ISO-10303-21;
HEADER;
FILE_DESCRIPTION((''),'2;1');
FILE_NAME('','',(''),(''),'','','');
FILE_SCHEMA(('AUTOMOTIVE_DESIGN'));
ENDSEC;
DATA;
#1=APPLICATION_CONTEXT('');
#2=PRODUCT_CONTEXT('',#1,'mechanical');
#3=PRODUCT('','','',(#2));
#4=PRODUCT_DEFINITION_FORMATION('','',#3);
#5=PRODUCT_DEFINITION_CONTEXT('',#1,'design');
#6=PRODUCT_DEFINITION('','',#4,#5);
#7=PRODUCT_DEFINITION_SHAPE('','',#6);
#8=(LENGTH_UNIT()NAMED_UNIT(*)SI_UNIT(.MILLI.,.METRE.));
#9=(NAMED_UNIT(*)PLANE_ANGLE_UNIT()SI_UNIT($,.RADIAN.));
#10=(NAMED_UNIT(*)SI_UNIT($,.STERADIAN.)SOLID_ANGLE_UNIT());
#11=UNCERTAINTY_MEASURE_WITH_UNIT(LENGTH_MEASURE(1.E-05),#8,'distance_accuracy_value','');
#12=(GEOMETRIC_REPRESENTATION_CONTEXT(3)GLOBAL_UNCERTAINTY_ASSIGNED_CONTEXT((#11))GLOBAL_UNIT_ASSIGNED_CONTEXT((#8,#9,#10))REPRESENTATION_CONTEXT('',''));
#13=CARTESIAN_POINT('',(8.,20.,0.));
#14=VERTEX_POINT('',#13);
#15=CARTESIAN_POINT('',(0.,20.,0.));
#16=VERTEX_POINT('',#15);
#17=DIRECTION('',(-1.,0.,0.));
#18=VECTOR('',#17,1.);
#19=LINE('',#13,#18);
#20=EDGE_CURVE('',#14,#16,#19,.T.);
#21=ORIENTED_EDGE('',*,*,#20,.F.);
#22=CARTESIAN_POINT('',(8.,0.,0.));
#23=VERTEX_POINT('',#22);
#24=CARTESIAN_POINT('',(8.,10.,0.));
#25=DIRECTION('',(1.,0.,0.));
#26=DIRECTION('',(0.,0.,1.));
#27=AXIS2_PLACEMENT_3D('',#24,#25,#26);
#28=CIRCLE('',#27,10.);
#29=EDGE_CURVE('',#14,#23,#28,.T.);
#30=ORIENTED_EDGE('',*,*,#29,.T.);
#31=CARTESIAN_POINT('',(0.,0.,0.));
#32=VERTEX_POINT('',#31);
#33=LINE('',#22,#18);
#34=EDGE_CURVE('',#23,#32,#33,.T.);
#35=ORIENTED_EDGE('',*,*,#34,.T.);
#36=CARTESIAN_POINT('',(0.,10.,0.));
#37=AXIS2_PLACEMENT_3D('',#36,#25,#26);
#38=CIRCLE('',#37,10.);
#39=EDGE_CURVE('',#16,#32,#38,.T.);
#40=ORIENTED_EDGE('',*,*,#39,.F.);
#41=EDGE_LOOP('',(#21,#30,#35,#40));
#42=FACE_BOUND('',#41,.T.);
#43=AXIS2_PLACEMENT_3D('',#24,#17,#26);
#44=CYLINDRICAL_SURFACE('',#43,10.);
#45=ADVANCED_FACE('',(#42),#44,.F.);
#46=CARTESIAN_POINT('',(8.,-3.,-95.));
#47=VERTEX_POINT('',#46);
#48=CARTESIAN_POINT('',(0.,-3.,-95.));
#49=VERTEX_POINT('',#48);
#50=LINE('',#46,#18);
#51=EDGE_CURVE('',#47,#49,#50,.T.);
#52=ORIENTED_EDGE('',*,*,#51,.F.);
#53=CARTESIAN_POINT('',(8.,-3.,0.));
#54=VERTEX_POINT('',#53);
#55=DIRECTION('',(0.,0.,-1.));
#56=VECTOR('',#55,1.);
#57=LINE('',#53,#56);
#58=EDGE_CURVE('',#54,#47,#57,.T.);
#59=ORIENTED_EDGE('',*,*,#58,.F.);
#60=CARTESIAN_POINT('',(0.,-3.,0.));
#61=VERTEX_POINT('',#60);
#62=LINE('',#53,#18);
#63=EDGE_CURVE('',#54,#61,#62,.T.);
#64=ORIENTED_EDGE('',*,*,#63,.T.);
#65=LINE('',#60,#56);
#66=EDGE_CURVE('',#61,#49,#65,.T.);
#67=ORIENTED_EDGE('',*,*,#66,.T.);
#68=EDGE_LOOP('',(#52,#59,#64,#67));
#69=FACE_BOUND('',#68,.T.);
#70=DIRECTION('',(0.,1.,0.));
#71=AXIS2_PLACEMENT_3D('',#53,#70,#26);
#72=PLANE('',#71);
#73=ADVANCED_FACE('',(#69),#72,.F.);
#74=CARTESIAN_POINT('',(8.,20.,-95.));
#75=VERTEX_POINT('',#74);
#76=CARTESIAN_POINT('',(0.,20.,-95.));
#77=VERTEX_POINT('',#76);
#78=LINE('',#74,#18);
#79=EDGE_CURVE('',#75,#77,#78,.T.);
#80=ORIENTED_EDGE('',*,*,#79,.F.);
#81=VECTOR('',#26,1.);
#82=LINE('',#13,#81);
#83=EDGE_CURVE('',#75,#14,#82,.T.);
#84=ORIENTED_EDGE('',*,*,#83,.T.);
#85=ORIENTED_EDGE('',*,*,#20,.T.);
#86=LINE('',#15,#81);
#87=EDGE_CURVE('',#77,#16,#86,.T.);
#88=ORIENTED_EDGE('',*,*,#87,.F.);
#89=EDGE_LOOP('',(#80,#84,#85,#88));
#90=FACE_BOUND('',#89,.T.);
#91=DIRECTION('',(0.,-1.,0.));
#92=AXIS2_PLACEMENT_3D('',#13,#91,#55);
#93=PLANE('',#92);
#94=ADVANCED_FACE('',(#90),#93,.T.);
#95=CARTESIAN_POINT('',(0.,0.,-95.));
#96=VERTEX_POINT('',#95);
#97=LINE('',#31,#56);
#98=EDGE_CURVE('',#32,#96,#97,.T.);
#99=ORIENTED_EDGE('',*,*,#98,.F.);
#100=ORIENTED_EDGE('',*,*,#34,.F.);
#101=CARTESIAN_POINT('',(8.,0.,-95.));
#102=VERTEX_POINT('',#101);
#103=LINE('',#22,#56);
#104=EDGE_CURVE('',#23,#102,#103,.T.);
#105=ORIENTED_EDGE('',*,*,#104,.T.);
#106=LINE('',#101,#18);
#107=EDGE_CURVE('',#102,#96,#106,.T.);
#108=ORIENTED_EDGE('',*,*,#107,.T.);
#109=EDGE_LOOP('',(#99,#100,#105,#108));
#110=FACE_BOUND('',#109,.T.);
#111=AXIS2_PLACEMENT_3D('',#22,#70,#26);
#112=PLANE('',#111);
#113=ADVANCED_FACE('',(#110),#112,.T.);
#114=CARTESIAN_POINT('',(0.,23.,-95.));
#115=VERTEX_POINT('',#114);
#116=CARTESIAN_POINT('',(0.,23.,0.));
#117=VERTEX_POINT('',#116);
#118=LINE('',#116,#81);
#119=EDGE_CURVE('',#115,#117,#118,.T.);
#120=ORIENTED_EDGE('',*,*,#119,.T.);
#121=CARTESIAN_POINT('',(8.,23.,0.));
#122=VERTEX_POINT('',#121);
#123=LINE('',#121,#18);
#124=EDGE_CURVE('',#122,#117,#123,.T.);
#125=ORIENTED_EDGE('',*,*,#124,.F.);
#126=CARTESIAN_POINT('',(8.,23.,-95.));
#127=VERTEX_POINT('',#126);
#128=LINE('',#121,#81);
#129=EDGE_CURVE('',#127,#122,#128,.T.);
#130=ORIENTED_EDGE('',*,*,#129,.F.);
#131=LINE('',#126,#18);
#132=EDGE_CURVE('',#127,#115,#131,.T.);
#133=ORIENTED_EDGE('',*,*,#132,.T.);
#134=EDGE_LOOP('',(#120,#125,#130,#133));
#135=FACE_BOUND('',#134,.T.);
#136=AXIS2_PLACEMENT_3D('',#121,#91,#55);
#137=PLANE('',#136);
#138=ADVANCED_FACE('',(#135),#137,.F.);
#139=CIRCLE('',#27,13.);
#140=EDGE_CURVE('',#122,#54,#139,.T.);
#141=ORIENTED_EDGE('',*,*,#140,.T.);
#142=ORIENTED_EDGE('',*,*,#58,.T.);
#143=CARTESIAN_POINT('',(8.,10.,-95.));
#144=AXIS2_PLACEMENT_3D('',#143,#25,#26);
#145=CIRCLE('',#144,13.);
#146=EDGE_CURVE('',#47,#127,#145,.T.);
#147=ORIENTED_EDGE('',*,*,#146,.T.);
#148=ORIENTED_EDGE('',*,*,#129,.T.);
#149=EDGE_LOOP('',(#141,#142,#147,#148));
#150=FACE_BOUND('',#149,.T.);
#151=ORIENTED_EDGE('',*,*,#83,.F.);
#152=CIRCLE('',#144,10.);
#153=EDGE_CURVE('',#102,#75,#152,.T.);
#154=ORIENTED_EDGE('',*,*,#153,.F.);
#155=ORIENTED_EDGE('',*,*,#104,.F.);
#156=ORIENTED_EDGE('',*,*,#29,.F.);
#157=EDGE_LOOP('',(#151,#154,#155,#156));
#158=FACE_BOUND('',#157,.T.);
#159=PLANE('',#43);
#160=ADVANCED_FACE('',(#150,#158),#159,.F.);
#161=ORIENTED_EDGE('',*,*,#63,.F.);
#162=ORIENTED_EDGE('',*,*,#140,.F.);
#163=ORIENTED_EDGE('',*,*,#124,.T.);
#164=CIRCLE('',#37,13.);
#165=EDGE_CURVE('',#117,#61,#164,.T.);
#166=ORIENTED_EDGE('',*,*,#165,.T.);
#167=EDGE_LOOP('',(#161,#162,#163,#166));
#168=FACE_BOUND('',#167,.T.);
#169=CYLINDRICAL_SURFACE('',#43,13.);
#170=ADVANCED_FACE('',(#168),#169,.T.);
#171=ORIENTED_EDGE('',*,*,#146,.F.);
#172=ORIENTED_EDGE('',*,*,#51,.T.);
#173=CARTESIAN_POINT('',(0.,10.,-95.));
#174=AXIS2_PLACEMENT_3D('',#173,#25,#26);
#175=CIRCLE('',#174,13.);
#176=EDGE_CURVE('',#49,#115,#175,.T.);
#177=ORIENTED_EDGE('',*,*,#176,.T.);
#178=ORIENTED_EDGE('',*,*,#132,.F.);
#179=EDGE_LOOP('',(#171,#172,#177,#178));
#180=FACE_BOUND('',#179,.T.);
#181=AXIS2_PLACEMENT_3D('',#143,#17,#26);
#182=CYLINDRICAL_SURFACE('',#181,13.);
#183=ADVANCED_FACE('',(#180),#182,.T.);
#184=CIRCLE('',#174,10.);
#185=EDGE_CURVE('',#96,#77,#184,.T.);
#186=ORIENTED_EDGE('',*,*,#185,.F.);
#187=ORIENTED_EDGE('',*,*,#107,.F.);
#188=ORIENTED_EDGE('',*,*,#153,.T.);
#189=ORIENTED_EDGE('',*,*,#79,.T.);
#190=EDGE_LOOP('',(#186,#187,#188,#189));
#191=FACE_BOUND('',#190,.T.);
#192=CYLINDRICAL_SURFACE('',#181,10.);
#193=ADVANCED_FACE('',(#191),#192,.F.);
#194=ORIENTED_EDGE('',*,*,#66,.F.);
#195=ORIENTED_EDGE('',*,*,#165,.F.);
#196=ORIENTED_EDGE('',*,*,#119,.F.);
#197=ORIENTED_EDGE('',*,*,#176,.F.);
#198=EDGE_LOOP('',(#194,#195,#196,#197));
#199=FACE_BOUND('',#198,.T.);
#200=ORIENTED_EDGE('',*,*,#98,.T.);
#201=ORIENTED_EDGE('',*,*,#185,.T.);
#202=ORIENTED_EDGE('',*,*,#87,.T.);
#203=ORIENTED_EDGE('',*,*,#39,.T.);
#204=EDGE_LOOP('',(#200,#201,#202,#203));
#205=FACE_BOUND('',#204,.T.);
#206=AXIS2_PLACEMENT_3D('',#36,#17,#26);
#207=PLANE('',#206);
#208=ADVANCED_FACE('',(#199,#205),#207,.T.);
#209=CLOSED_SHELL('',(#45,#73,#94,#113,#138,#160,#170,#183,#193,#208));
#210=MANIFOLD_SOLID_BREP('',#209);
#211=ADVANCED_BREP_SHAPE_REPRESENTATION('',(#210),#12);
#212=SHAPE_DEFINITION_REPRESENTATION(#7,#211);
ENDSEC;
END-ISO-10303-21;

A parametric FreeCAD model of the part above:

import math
import FreeCAD as App
import Part
import Sketcher
Q = App.Units.Quantity

doc = App.newDocument("Part")
body = doc.addObject("PartDesign::Body", "Body")

# Sketch on YZ plane
sketch1 = body.newObject("Sketcher::SketchObject", "Sketch")
sketch1.AttachmentSupport = (doc.getObject("YZ_Plane"), [""])
sketch1.MapMode = "FlatFace"
sketch1.addGeometry([
    Part.LineSegment(App.Vector(23, -95, 0), App.Vector(23, 0, 0)),  # 0
    Part.ArcOfCircle(Part.Circle(App.Vector(10, 0, 0), App.Vector(0, 0, 1), 13), math.radians(0), math.radians(180)),  # 1
    Part.LineSegment(App.Vector(-3, 0, 0), App.Vector(-3, -95, 0)),  # 2
    Part.ArcOfCircle(Part.Circle(App.Vector(10, -95, 0), App.Vector(0, 0, 1), 13), math.radians(180), math.radians(360)),  # 3
    Part.ArcOfCircle(Part.Circle(App.Vector(10, 0, 0), App.Vector(0, 0, 1), 10), math.radians(0), math.radians(180)),  # 4
    Part.LineSegment(App.Vector(20, 0, 0), App.Vector(20, -95, 0)),  # 5
    Part.ArcOfCircle(Part.Circle(App.Vector(10, -95, 0), App.Vector(0, 0, 1), 10), math.radians(180), math.radians(360)),  # 6
    Part.LineSegment(App.Vector(0, -95, 0), App.Vector(0, 0, 0)),  # 7
], False)
sketch1.addConstraint([
    Sketcher.Constraint("Tangent", 0, 2, 1, 1),
    Sketcher.Constraint("Tangent", 1, 2, 2, 1),
    Sketcher.Constraint("Tangent", 2, 2, 3, 1),
    Sketcher.Constraint("Tangent", 3, 2, 0, 1),
    Sketcher.Constraint("Tangent", 4, 1, 5, 1),
    Sketcher.Constraint("Tangent", 5, 2, 6, 2),
    Sketcher.Constraint("Tangent", 6, 1, 7, 1),
    Sketcher.Constraint("Tangent", 7, 2, 4, 2),
    Sketcher.Constraint("Vertical", 0),
    Sketcher.Constraint("Vertical", 2),
    Sketcher.Constraint("Vertical", 5),
    Sketcher.Constraint("Vertical", 7),
    Sketcher.Constraint("Coincident", 7, 2, -1, 1),
    Sketcher.Constraint("Coincident", 4, 3, 1, 3),
    Sketcher.Constraint("Horizontal", 6, 3, 2, 2),
    Sketcher.Constraint("Radius", 1, Q("13 mm")),
    Sketcher.Constraint("Radius", 4, Q("10 mm")),
    Sketcher.Constraint("DistanceY", 0, 1, 0, 2, Q("95 mm")),
])
pad1 = body.newObject("PartDesign::Pad", "Pad")
pad1.Profile = sketch1
pad1.Length = 8

doc.recompute()
